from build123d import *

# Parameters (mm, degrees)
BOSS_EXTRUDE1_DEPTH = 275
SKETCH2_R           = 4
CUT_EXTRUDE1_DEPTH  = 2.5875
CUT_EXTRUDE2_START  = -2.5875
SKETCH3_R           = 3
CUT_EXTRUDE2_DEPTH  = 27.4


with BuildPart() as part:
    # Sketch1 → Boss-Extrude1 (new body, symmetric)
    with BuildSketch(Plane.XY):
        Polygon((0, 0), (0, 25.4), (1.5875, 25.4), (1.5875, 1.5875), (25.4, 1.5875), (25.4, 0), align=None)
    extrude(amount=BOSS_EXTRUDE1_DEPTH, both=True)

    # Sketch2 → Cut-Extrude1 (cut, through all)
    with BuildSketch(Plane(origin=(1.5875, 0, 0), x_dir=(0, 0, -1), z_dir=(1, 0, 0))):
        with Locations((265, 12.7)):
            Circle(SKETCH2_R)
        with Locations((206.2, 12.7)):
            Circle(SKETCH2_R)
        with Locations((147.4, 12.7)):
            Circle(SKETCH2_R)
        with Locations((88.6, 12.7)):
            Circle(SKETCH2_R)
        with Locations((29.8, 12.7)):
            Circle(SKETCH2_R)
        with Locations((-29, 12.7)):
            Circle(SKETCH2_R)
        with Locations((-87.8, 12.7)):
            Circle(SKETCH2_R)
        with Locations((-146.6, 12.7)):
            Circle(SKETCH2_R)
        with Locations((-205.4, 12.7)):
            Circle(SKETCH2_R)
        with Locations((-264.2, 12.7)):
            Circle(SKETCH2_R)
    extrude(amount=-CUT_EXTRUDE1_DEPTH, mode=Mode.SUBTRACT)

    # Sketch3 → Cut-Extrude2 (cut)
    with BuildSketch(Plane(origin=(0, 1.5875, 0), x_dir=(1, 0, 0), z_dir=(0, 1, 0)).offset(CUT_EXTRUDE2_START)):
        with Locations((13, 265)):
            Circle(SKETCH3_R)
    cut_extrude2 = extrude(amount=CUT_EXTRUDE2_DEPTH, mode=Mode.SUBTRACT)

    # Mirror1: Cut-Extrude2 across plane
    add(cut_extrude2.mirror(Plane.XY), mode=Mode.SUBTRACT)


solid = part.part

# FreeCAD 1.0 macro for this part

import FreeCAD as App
import Part
import Sketcher
from FreeCAD import Vector
Q = App.Units.Quantity


def add_polygon(sketch, points):
    """Adds a closed chain of lines whose ends are joined by coincident constraints."""
    first, n = sketch.GeometryCount, len(points)
    for a, b in zip(points, points[1:] + points[:1]):
        sketch.addGeometry(Part.LineSegment(App.Vector(*a, 0), App.Vector(*b, 0)), False)
    for i in range(n):
        sketch.addConstraint(Sketcher.Constraint("Coincident", first + i, 2, first + (i + 1) % n, 1))

doc = App.newDocument("Part")
body = doc.addObject("PartDesign::Body", "Body")

# Sketch on XY plane
sketch1 = doc.addObject("Sketcher::SketchObject", "Sketch")
body.addObject(sketch1)
sketch1.AttachmentSupport = (doc.XY_Plane, [""])
sketch1.MapMode = "FlatFace"
add_polygon(sketch1, [(0, 25.4), (0, 0), (25.4, 0), (25.4, 1.6), (1.6, 1.6), (1.6, 25.4)])  # lines 0-5
sketch1.addConstraint([
    Sketcher.Constraint("Vertical", 0),
    Sketcher.Constraint("Horizontal", 1),
    Sketcher.Constraint("Vertical", 2),
    Sketcher.Constraint("Horizontal", 3),
    Sketcher.Constraint("Vertical", 4),
    Sketcher.Constraint("Horizontal", 5),
    Sketcher.Constraint("Coincident", 0, 2, -1, 1),
    Sketcher.Constraint("Equal", 1, 0),
    Sketcher.Constraint("Equal", 5, 2),
    Sketcher.Constraint("DistanceX", 1, 1, 1, 2, Q("25.4 mm")),
    Sketcher.Constraint("DistanceX", 3, 2, 3, 1, Q("23.8125 mm")),
])
pad1 = doc.addObject("PartDesign::Pad", "Pad")
body.addObject(pad1)
pad1.Profile = sketch1
pad1.Length = 550
pad1.Midplane = True

# Sketch on YZ plane
sketch2 = doc.addObject("Sketcher::SketchObject", "Sketch001")
body.addObject(sketch2)
sketch2.AttachmentSupport = (doc.YZ_Plane, [""])
sketch2.MapMode = "FlatFace"
sketch2.AttachmentOffset = App.Placement(Vector(0, 0, 1.5875), App.Rotation())
sketch2.addGeometry([
    Part.Circle(Vector(12.7, -265, 0), Vector(0, 0, 1), 4),  # 0
    Part.Circle(Vector(12.7, -206.2, 0), Vector(0, 0, 1), 4),  # 1
    Part.Circle(Vector(12.7, -147.4, 0), Vector(0, 0, 1), 4),  # 2
    Part.Circle(Vector(12.7, -88.6, 0), Vector(0, 0, 1), 4),  # 3
    Part.Circle(Vector(12.7, -29.8, 0), Vector(0, 0, 1), 4),  # 4
    Part.Circle(Vector(12.7, 29, 0), Vector(0, 0, 1), 4),  # 5
    Part.Circle(Vector(12.7, 87.8, 0), Vector(0, 0, 1), 4),  # 6
    Part.Circle(Vector(12.7, 146.6, 0), Vector(0, 0, 1), 4),  # 7
    Part.Circle(Vector(12.7, 205.4, 0), Vector(0, 0, 1), 4),  # 8
    Part.Circle(Vector(12.7, 264.2, 0), Vector(0, 0, 1), 4),  # 9
], False)
sketch2.addConstraint([
    Sketcher.Constraint("Equal", 0, 1),
    Sketcher.Constraint("Equal", 1, 2),
    Sketcher.Constraint("Equal", 2, 3),
    Sketcher.Constraint("Equal", 3, 4),
    Sketcher.Constraint("Equal", 4, 5),
    Sketcher.Constraint("Equal", 5, 6),
    Sketcher.Constraint("Equal", 6, 7),
    Sketcher.Constraint("Equal", 7, 8),
    Sketcher.Constraint("Equal", 8, 9),
    Sketcher.Constraint("Vertical", 0, 3, 1, 3),
    Sketcher.Constraint("Vertical", 1, 3, 2, 3),
    Sketcher.Constraint("Vertical", 2, 3, 3, 3),
    Sketcher.Constraint("Vertical", 3, 3, 4, 3),
    Sketcher.Constraint("Vertical", 4, 3, 5, 3),
    Sketcher.Constraint("Vertical", 5, 3, 6, 3),
    Sketcher.Constraint("Vertical", 6, 3, 7, 3),
    Sketcher.Constraint("Vertical", 7, 3, 8, 3),
    Sketcher.Constraint("Vertical", 8, 3, 9, 3),
    Sketcher.Constraint("Diameter", 0, Q("8 mm")),
    Sketcher.Constraint("DistanceY", 0, 3, -1, 1, Q("265 mm")),
    Sketcher.Constraint("DistanceY", -1, 1, 5, 3, Q("29 mm")),
    Sketcher.Constraint("DistanceY", 1, 3, 6, 3, Q("294 mm")),
    Sketcher.Constraint("DistanceY", 2, 3, 7, 3, Q("294 mm")),
    Sketcher.Constraint("DistanceY", 3, 3, 8, 3, Q("294 mm")),
    Sketcher.Constraint("DistanceY", 4, 3, 9, 3, Q("294 mm")),
    Sketcher.Constraint("DistanceX", -1, 1, 0, 3, Q("12.7 mm")),
    Sketcher.Constraint("DistanceY", 1, 3, -1, 1, Q("206.2 mm")),
    Sketcher.Constraint("DistanceY", 2, 3, -1, 1, Q("147.4 mm")),
    Sketcher.Constraint("DistanceY", 3, 3, -1, 1, Q("88.6 mm")),
    Sketcher.Constraint("DistanceY", 4, 3, -1, 1, Q("29.8 mm")),
])
pocket1 = doc.addObject("PartDesign::Pocket", "Pocket")
body.addObject(pocket1)
pocket1.Profile = sketch2
pocket1.Type = "ThroughAll"

# Sketch on XZ plane
sketch3 = doc.addObject("Sketcher::SketchObject", "Sketch002")
body.addObject(sketch3)
sketch3.AttachmentSupport = (doc.XZ_Plane, [""])
sketch3.MapMode = "FlatFace"
sketch3.AttachmentOffset = App.Placement(Vector(0, 0, 1), App.Rotation())
sketch3.addGeometry(Part.Circle(Vector(13, -265, 0), Vector(0, 0, 1), 3), False)
sketch3.addConstraint([
    Sketcher.Constraint("Diameter", 0, Q("6 mm")),
    Sketcher.Constraint("DistanceX", -1, 1, 0, 3, Q("13 mm")),
    Sketcher.Constraint("DistanceY", 0, 3, -1, 1, Q("265 mm")),
])
pocket2 = doc.addObject("PartDesign::Pocket", "Pocket001")
body.addObject(pocket2)
pocket2.Profile = sketch3
pocket2.Length = 27.4
doc.recompute()

mirrored = doc.addObject("PartDesign::Mirrored", "Mirrored")
body.addObject(mirrored)
mirrored.Originals = [pocket2]
mirrored.MirrorPlane = (doc.XY_Plane, [""])
body.Tip = mirrored

doc.recompute()
